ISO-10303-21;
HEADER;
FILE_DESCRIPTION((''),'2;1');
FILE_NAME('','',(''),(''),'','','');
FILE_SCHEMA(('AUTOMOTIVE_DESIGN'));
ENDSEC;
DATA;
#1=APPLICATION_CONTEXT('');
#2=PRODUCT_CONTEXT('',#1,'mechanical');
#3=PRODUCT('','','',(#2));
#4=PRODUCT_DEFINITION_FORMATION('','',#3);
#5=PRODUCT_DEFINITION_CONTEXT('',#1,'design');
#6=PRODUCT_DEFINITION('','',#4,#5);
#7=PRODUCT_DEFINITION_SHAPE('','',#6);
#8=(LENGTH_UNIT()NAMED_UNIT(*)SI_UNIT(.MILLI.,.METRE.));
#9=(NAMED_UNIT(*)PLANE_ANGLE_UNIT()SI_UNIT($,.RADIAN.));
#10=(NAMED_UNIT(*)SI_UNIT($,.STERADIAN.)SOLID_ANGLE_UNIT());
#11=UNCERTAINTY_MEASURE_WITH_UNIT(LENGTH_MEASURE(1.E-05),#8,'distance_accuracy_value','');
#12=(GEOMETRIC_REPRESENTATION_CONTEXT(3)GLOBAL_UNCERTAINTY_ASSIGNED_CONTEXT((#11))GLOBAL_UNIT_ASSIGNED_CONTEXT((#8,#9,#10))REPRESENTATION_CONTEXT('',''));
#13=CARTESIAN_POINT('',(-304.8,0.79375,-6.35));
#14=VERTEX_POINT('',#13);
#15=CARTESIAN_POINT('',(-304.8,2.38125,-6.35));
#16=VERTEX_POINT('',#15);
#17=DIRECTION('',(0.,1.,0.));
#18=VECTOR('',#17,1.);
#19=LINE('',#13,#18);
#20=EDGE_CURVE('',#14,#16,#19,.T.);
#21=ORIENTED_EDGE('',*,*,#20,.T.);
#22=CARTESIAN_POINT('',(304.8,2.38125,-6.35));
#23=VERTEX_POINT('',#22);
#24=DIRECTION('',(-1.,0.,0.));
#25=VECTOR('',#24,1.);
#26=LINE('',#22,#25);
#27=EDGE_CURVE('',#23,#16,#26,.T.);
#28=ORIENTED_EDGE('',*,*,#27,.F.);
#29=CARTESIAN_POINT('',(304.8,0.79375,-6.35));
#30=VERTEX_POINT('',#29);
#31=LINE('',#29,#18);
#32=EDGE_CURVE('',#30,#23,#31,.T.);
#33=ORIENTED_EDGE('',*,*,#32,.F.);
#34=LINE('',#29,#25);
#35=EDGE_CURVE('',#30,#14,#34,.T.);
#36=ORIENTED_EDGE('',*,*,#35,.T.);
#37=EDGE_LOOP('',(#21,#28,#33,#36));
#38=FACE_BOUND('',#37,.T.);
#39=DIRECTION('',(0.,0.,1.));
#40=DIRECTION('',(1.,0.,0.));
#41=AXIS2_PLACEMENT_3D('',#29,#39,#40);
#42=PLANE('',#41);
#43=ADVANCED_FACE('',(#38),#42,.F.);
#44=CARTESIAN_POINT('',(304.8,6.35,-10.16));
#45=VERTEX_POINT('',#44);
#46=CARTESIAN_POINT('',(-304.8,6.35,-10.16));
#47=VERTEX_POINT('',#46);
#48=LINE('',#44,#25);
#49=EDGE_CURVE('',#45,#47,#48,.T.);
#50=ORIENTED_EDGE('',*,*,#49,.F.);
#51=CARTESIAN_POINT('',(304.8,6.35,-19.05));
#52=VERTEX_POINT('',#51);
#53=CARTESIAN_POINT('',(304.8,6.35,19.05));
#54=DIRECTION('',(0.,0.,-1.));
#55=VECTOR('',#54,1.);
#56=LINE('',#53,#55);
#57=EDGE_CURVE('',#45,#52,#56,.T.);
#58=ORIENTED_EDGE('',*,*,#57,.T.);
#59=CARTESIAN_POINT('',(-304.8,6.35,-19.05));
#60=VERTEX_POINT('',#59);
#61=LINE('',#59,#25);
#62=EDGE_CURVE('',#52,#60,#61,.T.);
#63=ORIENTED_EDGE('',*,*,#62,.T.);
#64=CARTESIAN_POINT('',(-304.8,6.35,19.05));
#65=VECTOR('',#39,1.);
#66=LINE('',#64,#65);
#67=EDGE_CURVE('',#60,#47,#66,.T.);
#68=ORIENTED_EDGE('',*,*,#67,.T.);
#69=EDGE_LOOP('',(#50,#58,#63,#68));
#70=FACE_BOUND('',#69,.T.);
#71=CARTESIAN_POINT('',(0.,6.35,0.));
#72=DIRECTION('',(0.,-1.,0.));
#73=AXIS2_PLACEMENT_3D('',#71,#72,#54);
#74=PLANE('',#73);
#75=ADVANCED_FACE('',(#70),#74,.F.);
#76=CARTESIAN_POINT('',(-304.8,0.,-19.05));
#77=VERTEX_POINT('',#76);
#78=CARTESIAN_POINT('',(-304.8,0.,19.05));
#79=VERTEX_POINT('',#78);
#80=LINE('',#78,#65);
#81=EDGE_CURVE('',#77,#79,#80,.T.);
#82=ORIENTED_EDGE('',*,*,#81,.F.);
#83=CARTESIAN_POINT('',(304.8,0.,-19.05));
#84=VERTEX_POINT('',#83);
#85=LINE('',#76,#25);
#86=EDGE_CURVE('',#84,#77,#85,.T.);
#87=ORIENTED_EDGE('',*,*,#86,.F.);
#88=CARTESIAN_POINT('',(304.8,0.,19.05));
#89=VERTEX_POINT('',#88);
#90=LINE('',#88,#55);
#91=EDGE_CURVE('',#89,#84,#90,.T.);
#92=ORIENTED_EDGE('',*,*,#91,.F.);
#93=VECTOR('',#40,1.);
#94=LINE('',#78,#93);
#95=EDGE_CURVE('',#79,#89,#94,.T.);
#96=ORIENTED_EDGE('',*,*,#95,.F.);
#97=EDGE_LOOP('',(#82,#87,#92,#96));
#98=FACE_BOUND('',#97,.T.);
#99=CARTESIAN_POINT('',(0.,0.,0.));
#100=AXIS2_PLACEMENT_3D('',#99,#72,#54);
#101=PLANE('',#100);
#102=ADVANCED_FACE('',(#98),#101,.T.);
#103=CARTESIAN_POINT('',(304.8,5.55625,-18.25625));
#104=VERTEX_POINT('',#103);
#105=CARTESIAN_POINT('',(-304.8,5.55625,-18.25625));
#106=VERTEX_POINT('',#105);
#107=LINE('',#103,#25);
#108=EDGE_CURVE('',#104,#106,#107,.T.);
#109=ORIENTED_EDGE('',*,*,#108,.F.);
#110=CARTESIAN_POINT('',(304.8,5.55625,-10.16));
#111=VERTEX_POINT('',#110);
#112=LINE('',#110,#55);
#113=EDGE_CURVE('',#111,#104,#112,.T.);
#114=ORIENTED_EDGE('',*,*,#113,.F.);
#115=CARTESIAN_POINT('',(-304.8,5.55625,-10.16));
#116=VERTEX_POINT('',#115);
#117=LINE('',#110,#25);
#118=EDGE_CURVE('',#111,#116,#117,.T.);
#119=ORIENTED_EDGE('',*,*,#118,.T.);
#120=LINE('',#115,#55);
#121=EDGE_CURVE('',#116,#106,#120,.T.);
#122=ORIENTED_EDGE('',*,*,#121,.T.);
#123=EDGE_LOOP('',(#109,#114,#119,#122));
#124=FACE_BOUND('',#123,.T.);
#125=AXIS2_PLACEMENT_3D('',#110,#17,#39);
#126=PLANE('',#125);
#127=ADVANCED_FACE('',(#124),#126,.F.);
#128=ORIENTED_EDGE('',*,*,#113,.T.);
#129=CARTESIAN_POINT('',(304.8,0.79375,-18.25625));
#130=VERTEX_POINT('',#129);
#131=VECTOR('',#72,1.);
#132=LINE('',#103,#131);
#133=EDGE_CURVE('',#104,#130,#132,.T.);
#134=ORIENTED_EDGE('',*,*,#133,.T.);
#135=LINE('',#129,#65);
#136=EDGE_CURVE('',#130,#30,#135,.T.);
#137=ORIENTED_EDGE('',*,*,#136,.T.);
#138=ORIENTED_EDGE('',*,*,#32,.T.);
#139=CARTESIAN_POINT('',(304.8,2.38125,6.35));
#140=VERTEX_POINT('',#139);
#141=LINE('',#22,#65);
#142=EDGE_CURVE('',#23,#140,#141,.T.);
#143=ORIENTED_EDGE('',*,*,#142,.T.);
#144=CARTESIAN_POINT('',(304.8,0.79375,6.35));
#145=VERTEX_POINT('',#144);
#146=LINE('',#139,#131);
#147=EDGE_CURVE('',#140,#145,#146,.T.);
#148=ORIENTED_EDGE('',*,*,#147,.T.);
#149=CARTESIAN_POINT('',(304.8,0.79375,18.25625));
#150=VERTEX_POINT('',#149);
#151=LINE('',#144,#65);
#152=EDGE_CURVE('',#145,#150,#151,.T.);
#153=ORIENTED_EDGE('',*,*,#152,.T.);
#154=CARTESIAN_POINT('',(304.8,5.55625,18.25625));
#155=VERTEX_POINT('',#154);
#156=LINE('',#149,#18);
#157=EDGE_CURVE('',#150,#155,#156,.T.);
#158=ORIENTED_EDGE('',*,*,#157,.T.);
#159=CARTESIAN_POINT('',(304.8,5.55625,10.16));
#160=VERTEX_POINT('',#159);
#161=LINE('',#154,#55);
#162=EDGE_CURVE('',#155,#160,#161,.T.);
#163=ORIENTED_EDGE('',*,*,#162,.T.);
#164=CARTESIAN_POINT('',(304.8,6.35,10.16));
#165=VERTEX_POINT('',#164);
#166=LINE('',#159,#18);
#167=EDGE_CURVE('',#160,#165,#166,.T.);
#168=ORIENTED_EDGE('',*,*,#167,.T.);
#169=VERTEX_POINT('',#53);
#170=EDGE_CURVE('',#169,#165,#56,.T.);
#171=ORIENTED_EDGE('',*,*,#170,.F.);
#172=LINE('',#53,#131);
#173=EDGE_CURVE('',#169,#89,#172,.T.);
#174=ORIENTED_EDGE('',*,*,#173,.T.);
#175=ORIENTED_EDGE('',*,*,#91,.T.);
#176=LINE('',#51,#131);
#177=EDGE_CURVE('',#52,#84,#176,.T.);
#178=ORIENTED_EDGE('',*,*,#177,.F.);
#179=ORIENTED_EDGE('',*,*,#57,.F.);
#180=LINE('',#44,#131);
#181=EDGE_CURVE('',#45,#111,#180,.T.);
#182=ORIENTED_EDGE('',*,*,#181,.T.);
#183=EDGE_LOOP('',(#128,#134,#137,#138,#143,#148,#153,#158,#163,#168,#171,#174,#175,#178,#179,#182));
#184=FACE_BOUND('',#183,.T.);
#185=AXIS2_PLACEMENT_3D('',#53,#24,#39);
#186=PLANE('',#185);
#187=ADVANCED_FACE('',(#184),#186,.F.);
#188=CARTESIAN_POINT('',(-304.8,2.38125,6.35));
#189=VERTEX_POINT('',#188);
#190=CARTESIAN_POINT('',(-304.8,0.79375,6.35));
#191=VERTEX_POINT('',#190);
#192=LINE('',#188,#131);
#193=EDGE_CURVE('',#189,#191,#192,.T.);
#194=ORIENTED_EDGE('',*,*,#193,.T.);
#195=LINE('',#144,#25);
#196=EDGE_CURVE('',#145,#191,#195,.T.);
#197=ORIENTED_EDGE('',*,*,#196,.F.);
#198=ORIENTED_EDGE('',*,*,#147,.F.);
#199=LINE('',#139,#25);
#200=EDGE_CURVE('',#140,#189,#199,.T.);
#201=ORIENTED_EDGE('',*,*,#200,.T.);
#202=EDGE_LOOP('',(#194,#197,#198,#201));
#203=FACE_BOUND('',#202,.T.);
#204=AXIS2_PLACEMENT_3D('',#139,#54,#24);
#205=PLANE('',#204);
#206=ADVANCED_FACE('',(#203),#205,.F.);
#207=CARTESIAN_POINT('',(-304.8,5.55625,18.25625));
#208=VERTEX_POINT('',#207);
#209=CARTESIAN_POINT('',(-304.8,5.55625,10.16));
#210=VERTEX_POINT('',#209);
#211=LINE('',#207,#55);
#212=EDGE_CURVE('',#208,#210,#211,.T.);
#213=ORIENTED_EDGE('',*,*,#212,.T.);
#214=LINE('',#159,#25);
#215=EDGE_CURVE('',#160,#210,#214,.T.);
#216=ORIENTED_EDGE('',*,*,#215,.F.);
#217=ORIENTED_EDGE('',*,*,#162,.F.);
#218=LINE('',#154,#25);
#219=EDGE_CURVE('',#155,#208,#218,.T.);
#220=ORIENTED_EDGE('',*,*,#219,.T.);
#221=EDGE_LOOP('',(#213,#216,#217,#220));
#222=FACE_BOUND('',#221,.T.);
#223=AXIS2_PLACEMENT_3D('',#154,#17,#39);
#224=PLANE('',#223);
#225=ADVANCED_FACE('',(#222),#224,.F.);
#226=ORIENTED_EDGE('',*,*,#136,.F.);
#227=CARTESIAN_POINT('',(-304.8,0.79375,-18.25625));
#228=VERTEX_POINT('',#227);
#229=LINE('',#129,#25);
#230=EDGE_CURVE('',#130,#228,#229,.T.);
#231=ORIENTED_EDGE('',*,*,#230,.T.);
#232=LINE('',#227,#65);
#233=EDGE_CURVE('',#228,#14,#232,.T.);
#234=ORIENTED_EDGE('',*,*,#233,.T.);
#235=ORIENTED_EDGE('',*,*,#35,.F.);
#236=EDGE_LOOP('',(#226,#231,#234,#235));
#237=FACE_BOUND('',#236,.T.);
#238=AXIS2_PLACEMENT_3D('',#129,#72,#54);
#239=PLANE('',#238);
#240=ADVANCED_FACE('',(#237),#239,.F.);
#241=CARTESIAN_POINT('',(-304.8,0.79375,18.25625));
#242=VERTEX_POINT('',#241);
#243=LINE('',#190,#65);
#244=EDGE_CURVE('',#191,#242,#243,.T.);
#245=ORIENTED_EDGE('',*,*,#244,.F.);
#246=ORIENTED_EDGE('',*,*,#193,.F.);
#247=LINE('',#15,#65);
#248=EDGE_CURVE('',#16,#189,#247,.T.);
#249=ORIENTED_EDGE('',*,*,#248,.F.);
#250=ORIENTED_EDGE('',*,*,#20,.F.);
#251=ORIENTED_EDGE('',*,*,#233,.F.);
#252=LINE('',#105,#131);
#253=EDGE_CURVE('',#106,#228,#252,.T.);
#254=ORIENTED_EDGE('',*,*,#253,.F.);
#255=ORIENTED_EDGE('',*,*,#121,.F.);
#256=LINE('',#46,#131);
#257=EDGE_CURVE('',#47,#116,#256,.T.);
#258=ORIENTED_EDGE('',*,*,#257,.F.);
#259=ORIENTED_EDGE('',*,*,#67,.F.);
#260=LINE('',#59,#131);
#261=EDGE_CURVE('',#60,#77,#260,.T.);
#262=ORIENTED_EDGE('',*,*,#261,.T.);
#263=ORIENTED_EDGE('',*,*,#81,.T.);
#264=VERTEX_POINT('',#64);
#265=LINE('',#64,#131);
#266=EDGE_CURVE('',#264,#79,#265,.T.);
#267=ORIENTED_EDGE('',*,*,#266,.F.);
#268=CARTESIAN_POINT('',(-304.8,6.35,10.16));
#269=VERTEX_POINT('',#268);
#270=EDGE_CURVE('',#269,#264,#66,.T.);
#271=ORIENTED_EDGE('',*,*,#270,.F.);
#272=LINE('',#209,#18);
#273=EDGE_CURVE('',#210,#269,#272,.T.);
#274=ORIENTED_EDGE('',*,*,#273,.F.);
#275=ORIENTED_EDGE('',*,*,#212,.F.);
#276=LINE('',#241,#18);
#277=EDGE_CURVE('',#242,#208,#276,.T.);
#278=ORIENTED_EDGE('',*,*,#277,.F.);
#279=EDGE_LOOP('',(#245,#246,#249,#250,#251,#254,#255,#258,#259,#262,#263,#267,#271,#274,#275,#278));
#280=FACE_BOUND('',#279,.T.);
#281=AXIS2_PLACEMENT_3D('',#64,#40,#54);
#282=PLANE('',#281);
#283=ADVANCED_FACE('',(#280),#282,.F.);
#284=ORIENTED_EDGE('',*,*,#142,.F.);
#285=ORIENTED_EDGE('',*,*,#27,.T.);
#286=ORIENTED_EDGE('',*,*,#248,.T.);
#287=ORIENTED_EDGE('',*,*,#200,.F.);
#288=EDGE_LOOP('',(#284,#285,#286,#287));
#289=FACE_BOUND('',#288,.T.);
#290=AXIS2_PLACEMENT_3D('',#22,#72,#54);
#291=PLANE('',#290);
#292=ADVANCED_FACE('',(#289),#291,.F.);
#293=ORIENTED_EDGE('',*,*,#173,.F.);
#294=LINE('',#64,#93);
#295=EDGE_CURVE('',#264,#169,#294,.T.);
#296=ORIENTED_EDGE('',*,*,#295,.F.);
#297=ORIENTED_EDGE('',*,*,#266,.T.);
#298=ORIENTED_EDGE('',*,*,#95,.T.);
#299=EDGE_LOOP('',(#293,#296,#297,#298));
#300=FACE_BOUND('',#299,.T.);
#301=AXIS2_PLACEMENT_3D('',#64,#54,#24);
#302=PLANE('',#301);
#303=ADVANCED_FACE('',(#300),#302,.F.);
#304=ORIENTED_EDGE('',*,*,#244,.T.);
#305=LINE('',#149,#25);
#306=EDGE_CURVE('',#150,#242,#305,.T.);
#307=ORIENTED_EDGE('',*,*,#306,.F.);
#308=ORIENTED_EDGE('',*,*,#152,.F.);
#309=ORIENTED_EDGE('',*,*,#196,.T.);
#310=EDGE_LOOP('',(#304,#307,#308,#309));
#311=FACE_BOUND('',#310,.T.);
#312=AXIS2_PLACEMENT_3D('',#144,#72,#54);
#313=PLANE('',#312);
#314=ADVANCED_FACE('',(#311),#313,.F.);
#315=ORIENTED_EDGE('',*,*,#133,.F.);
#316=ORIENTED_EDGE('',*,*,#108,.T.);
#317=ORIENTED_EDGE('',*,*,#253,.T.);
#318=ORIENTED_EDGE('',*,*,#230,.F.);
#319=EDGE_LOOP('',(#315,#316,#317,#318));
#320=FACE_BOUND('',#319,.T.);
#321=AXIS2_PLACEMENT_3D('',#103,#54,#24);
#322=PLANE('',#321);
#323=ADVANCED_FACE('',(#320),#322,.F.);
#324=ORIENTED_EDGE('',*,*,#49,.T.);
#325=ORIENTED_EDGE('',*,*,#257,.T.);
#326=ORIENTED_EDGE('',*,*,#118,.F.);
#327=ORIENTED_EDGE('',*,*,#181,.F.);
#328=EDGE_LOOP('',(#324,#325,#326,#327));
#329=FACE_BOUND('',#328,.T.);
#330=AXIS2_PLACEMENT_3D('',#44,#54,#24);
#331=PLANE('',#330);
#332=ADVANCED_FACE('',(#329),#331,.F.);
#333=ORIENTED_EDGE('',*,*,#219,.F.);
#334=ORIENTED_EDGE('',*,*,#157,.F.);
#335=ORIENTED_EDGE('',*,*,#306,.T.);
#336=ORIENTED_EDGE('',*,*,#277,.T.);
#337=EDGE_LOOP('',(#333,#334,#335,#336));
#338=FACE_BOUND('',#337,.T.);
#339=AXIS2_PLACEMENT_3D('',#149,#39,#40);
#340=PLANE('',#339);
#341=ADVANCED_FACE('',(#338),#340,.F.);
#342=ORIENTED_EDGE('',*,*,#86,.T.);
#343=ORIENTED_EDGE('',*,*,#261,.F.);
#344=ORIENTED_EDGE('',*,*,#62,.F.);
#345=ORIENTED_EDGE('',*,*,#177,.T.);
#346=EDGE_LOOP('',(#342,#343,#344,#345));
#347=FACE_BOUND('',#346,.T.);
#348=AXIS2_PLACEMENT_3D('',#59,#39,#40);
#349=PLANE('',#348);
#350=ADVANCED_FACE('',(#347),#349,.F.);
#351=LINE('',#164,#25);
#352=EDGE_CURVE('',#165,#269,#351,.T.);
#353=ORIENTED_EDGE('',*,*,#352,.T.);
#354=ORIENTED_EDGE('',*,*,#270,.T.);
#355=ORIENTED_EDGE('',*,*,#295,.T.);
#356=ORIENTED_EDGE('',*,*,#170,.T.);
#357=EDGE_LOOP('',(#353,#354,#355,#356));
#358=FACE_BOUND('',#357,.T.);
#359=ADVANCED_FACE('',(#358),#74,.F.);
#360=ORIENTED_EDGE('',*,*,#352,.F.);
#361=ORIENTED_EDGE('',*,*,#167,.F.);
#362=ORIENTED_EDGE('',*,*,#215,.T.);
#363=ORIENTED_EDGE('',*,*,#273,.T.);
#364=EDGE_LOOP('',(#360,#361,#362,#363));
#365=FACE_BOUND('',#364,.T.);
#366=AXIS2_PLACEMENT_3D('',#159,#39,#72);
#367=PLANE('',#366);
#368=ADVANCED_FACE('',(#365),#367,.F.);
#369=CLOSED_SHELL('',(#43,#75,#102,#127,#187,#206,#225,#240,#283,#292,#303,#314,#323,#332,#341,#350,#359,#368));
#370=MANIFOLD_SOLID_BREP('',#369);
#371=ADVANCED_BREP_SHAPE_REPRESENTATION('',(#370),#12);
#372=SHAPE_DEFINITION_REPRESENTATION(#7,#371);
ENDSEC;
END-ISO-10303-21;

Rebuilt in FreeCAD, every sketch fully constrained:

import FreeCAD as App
import Part
import Sketcher

V = App.Vector
Q = App.Units.Quantity


def add_polygon(sketch, points):
    """Adds a closed chain of lines whose ends are joined by coincident constraints."""
    first, n = sketch.GeometryCount, len(points)
    for a, b in zip(points, points[1:] + points[:1]):
        sketch.addGeometry(Part.LineSegment(App.Vector(*a, 0), App.Vector(*b, 0)), False)
    for i in range(n):
        sketch.addConstraint(Sketcher.Constraint("Coincident", first + i, 2, first + (i + 1) % n, 1))

doc = App.newDocument("Part")
body = doc.addObject("PartDesign::Body", "Body")

# Sketch on XZ plane
sketch1 = body.newObject("Sketcher::SketchObject", "Sketch")
sketch1.AttachmentSupport = (doc.getObject("XZ_Plane"), [""])
sketch1.MapMode = "FlatFace"
add_polygon(sketch1, [(-305, -19), (-305, 19), (305, 19), (305, -19)])  # lines 0-3
sketch1.addConstraint([
    Sketcher.Constraint("Vertical", 0),
    Sketcher.Constraint("Horizontal", 1),
    Sketcher.Constraint("Vertical", 2),
    Sketcher.Constraint("Horizontal", 3),
    Sketcher.Constraint("Symmetric", 0, 2, 2, 2, -1, 1),
    Sketcher.Constraint("DistanceX", 1, 1, 1, 2, Q("24 in")),
    Sketcher.Constraint("DistanceY", 0, 1, 0, 2, Q("1.5 in")),
])
pad1 = body.newObject("PartDesign::Pad", "Pad")
pad1.Profile = sketch1
pad1.Length = Q("0.25 in")
pad1.Reversed = True

# Sketch on YZ plane
sketch2 = body.newObject("Sketcher::SketchObject", "Sketch001")
sketch2.AttachmentSupport = (doc.getObject("YZ_Plane"), [""])
sketch2.MapMode = "FlatFace"
sketch2.AttachmentOffset = App.Placement(V(0, 0, -12 * 25.4), App.Rotation())
add_polygon(sketch2, [(6.3, -10.2), (5.6, -10.2), (5.6, -18.3), (0.8, -18.3), (0.8, -6.3), (2.4, -6.3), (2.4, 6.3), (0.8, 6.3), (0.8, 18.3), (5.6, 18.3), (5.6, 10.2), (6.3, 10.2)])  # lines 0-11
sketch2.addConstraint([
    Sketcher.Constraint("Horizontal", 0),
    Sketcher.Constraint("Vertical", 1),
    Sketcher.Constraint("Horizontal", 2),
    Sketcher.Constraint("Vertical", 3),
    Sketcher.Constraint("Horizontal", 4),
    Sketcher.Constraint("Vertical", 5),
    Sketcher.Constraint("Horizontal", 6),
    Sketcher.Constraint("Vertical", 7),
    Sketcher.Constraint("Horizontal", 8),
    Sketcher.Constraint("Vertical", 9),
    Sketcher.Constraint("Horizontal", 10),
    Sketcher.Constraint("Vertical", 11),
    Sketcher.Constraint("Symmetric", 3, 2, 6, 2, -1),
    Sketcher.Constraint("Symmetric", 1, 2, 8, 2, -1),
    Sketcher.Constraint("Equal", 1, 9),
    Sketcher.Constraint("DistanceY", 5, 1, 5, 2, Q("0.5 in")),
    Sketcher.Constraint("DistanceY", 11, 2, 11, 1, Q("0.8 in")),
    Sketcher.Constraint("DistanceX", 0, 2, 0, 1, Q("0.03125 in")),
    Sketcher.Constraint("DistanceX", 2, 2, 2, 1, Q("0.1875 in")),
    Sketcher.Constraint("DistanceX", 4, 1, 4, 2, Q("0.0625 in")),
    Sketcher.Constraint("DistanceY", 3, 1, 3, 2, Q("0.46875 in")),
    Sketcher.Constraint("DistanceX", -1, 1, 10, 2, Q("0.25 in")),
])
pocket1 = body.newObject("PartDesign::Pocket", "Pocket")
pocket1.Profile = sketch2
pocket1.Length = Q("24 in")
pocket1.Reversed = True

doc.recompute()
